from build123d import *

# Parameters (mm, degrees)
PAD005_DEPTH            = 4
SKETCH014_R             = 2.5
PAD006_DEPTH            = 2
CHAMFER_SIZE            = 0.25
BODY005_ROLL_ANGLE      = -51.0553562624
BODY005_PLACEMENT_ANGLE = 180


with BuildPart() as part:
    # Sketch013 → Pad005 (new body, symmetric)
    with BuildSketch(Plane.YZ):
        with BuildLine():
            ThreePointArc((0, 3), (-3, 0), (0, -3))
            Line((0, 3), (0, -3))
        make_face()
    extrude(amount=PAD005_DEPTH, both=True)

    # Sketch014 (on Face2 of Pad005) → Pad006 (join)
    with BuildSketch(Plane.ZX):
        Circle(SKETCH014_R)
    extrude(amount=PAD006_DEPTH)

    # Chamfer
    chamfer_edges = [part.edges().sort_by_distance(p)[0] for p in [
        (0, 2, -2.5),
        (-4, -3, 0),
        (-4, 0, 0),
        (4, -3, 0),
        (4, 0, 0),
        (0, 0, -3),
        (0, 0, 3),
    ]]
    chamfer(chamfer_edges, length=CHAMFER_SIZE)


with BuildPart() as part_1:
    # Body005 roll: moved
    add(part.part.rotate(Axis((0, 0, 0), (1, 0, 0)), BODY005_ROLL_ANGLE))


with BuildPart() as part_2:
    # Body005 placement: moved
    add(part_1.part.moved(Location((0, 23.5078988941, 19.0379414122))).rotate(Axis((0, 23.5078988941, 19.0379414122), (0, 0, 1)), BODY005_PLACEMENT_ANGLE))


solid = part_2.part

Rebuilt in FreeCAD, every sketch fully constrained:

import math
import FreeCAD as App
import Part
import Sketcher
from FreeCAD import Vector


def edges_at(feature, points):
    """Names of the edges that pass closest to the given points."""
    edges = feature.Shape.Edges
    near = lambda p: min(range(len(edges)), key=lambda i: edges[i].distToShape(Part.Vertex(*p))[0])
    return sorted({f"Edge{near(p) + 1}" for p in points})

doc = App.newDocument("Part")
body = doc.addObject("PartDesign::Body", "Body")

# Sketch on YZ plane
sketch1 = body.newObject("Sketcher::SketchObject", "Sketch")
sketch1.AttachmentSupport = (doc.getObject("YZ_Plane"), [""])
sketch1.MapMode = "FlatFace"
sketch1.addGeometry(Part.ArcOfCircle(Part.Circle(Vector(0, 0, 0), Vector(0, 0, 1), 3), math.radians(90), math.radians(270)), False)
sketch1.addGeometry(Part.LineSegment(Vector(0, -3, 0), Vector(0, 3, 0)), False)
sketch1.addConstraint(Sketcher.Constraint("Coincident", 0, 1, 1, 2))
sketch1.addConstraint(Sketcher.Constraint("Coincident", 1, 1, 0, 2))
sketch1.addConstraint(Sketcher.Constraint("Vertical", 1))
sketch1.addConstraint(Sketcher.Constraint("Coincident", 0, 3, -1, 1))
sketch1.addConstraint(Sketcher.Constraint("PointOnObject", 0, 1, -2))
sketch1.addConstraint(Sketcher.Constraint("Radius", 0, 3.0))
pad1 = body.newObject("PartDesign::Pad", "Pad")
pad1.Profile = sketch1
pad1.Length = 8
pad1.Midplane = True

# Sketch on XZ plane
sketch2 = body.newObject("Sketcher::SketchObject", "Sketch001")
sketch2.AttachmentSupport = (doc.getObject("XZ_Plane"), [""])
sketch2.MapMode = "FlatFace"
sketch2.addGeometry(Part.Circle(Vector(0, 0, 0), Vector(0, 0, 1), 2.5), False)
sketch2.addConstraint(Sketcher.Constraint("Coincident", 0, 3, -1, 1))
sketch2.addConstraint(Sketcher.Constraint("Diameter", 0, 5.0))
pad2 = body.newObject("PartDesign::Pad", "Pad001")
pad2.Profile = sketch2
pad2.Length = 2
pad2.Reversed = True
doc.recompute()

chamfer = body.newObject("PartDesign::Chamfer", "Chamfer")
chamfer.Base = (pad2, edges_at(pad2, [
    (0, 2, -2.5),
    (-4, -3, 0),
    (-4, 0, 0),
    (4, -3, 0),
    (4, 0, 0),
    (0, 0, -3),
    (0, 0, 3),
]))
chamfer.Size = 0.25
body2 = doc.addObject("PartDesign::Body", "Body001")
doc.recompute()

body.Placement = App.Placement(Vector(0, 0, 0), App.Rotation(Vector(1, 0, 0), 308.944644))
boolean = body2.newObject("PartDesign::Boolean", "Boolean")
boolean.Type = "Fuse"
boolean.addObjects([body])
body3 = doc.addObject("PartDesign::Body", "Body002")
doc.recompute()

body2.Placement = App.Placement(Vector(0, 23.507899, 19.037941), App.Rotation(Vector(0, 0, 1), 180))
boolean2 = body3.newObject("PartDesign::Boolean", "Boolean001")
boolean2.Type = "Fuse"
boolean2.addObjects([body2])

doc.recompute()
